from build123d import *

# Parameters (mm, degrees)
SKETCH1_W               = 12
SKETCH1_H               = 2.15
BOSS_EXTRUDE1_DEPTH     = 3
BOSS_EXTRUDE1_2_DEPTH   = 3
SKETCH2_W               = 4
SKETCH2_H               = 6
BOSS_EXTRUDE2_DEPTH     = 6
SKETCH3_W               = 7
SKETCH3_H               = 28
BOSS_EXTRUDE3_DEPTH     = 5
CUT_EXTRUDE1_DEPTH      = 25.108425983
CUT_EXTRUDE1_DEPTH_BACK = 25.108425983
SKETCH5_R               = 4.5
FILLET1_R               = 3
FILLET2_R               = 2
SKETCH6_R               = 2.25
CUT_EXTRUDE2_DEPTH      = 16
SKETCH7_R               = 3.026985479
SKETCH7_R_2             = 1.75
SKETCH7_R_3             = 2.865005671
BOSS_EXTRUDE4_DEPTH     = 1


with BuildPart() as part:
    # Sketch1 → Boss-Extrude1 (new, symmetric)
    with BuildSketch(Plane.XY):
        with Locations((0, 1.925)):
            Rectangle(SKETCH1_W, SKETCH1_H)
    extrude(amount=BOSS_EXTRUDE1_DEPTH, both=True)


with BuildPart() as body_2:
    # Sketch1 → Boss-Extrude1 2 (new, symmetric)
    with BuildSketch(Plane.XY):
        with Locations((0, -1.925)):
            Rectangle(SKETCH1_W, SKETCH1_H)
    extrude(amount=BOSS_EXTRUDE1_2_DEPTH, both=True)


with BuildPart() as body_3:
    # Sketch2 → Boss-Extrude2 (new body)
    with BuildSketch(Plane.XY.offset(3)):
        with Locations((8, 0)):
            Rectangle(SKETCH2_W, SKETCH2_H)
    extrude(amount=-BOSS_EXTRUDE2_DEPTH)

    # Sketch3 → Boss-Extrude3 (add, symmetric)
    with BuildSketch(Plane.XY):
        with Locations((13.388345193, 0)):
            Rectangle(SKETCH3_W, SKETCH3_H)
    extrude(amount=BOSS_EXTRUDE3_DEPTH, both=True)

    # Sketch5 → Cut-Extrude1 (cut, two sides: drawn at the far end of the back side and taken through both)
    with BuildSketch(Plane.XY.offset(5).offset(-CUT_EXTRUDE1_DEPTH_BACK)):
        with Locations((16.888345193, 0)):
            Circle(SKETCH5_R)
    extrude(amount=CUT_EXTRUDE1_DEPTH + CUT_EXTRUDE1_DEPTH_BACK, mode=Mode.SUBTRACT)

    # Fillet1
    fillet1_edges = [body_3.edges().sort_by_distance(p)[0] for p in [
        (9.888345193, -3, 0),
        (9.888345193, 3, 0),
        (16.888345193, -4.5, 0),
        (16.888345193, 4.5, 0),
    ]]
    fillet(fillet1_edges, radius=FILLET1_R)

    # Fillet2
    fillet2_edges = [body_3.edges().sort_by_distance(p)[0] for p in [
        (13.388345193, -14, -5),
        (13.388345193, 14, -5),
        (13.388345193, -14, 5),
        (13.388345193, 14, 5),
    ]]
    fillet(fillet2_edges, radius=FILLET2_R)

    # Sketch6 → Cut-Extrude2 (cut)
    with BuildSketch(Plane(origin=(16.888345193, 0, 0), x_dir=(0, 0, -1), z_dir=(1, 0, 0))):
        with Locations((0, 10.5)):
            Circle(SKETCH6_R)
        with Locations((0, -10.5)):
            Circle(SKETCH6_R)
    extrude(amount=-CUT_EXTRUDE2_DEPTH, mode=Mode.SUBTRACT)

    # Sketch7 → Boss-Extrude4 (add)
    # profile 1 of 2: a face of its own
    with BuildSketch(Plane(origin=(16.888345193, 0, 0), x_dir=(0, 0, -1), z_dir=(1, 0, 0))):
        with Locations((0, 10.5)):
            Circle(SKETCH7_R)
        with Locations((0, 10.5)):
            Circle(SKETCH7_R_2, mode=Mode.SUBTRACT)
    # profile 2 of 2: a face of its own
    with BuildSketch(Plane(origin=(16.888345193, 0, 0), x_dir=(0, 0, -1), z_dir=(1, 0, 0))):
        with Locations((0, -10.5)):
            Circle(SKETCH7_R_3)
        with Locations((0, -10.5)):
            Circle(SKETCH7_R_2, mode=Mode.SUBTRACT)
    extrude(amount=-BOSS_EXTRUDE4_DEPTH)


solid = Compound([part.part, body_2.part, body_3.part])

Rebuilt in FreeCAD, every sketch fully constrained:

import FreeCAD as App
import Part
import Sketcher
Q = App.Units.Quantity


def edges_at(feature, points):
    """Names of the edges that pass closest to the given points."""
    edges = feature.Shape.Edges
    near = lambda p: min(range(len(edges)), key=lambda i: edges[i].distToShape(Part.Vertex(*p))[0])
    return sorted({f"Edge{near(p) + 1}" for p in points})

doc = App.newDocument("Part")
body = doc.addObject("PartDesign::Body", "Body")

sketch1 = body.newObject("Sketcher::SketchObject", "Sketch")
sketch1.AttachmentSupport = (doc.getObject("XY_Plane"), [""])
sketch1.MapMode = "FlatFace"
sketch1.addGeometry(Part.LineSegment(App.Vector(-6, 3, 0), App.Vector(-6, 0.8, 0)), False)
sketch1.addGeometry(Part.LineSegment(App.Vector(-6, 0.8, 0), App.Vector(6, 0.8, 0)), False)
sketch1.addGeometry(Part.LineSegment(App.Vector(6, 0.8, 0), App.Vector(6, 3, 0)), False)
sketch1.addGeometry(Part.LineSegment(App.Vector(6, 3, 0), App.Vector(-6, 3, 0)), False)
sketch1.addConstraint(Sketcher.Constraint("Coincident", 0, 2, 1, 1))
sketch1.addConstraint(Sketcher.Constraint("Coincident", 1, 2, 2, 1))
sketch1.addConstraint(Sketcher.Constraint("Coincident", 2, 2, 3, 1))
sketch1.addConstraint(Sketcher.Constraint("Coincident", 3, 2, 0, 1))
sketch1.addConstraint(Sketcher.Constraint("Vertical", 0))
sketch1.addConstraint(Sketcher.Constraint("Horizontal", 1))
sketch1.addConstraint(Sketcher.Constraint("Vertical", 2))
sketch1.addConstraint(Sketcher.Constraint("Horizontal", 3))
sketch1.addConstraint(Sketcher.Constraint("DistanceX", 1, 1, 1, 2, Q("12 mm")))
sketch1.addConstraint(Sketcher.Constraint("DistanceX", 0, 2, -1, 1, Q("6 mm")))
sketch1.addConstraint(Sketcher.Constraint("DistanceY", -1, 1, 2, 2, Q("3 mm")))
sketch1.addConstraint(Sketcher.Constraint("DistanceY", 0, 2, 0, 1, Q("2.15 mm")))
pad1 = body.newObject("PartDesign::Pad", "Pad")
pad1.Profile = sketch1
pad1.Length = 6
pad1.Midplane = True
body2 = doc.addObject("PartDesign::Body", "Body001")

sketch2 = body2.newObject("Sketcher::SketchObject", "Sketch001")
sketch2.AttachmentSupport = (doc.getObject("XY_Plane001"), [""])
sketch2.MapMode = "FlatFace"
sketch2.addGeometry(Part.LineSegment(App.Vector(-6, -0.8, 0), App.Vector(-6, -3, 0)), False)
sketch2.addGeometry(Part.LineSegment(App.Vector(-6, -3, 0), App.Vector(6, -3, 0)), False)
sketch2.addGeometry(Part.LineSegment(App.Vector(6, -3, 0), App.Vector(6, -0.8, 0)), False)
sketch2.addGeometry(Part.LineSegment(App.Vector(6, -0.8, 0), App.Vector(-6, -0.8, 0)), False)
sketch2.addConstraint(Sketcher.Constraint("Coincident", 0, 2, 1, 1))
sketch2.addConstraint(Sketcher.Constraint("Coincident", 1, 2, 2, 1))
sketch2.addConstraint(Sketcher.Constraint("Coincident", 2, 2, 3, 1))
sketch2.addConstraint(Sketcher.Constraint("Coincident", 3, 2, 0, 1))
sketch2.addConstraint(Sketcher.Constraint("Vertical", 0))
sketch2.addConstraint(Sketcher.Constraint("Horizontal", 1))
sketch2.addConstraint(Sketcher.Constraint("Vertical", 2))
sketch2.addConstraint(Sketcher.Constraint("Horizontal", 3))
sketch2.addConstraint(Sketcher.Constraint("DistanceX", 1, 1, 1, 2, Q("12 mm")))
sketch2.addConstraint(Sketcher.Constraint("DistanceX", 0, 2, -1, 1, Q("6 mm")))
sketch2.addConstraint(Sketcher.Constraint("DistanceY", 0, 2, -1, 1, Q("3 mm")))
sketch2.addConstraint(Sketcher.Constraint("DistanceY", 0, 2, 0, 1, Q("2.15 mm")))
pad2 = body2.newObject("PartDesign::Pad", "Pad001")
pad2.Profile = sketch2
pad2.Length = 6
pad2.Midplane = True
body3 = doc.addObject("PartDesign::Body", "Body002")

sketch3 = body3.newObject("Sketcher::SketchObject", "Sketch002")
sketch3.AttachmentSupport = (doc.getObject("XY_Plane002"), [""])
sketch3.MapMode = "FlatFace"
sketch3.AttachmentOffset = App.Placement(App.Vector(0, 0, 3), App.Rotation())
sketch3.addGeometry(Part.LineSegment(App.Vector(6, 3, 0), App.Vector(6, -3, 0)), False)
sketch3.addGeometry(Part.LineSegment(App.Vector(6, -3, 0), App.Vector(10, -3, 0)), False)
sketch3.addGeometry(Part.LineSegment(App.Vector(10, -3, 0), App.Vector(10, 3, 0)), False)
sketch3.addGeometry(Part.LineSegment(App.Vector(10, 3, 0), App.Vector(6, 3, 0)), False)
sketch3.addConstraint(Sketcher.Constraint("Coincident", 0, 2, 1, 1))
sketch3.addConstraint(Sketcher.Constraint("Coincident", 1, 2, 2, 1))
sketch3.addConstraint(Sketcher.Constraint("Coincident", 2, 2, 3, 1))
sketch3.addConstraint(Sketcher.Constraint("Coincident", 3, 2, 0, 1))
sketch3.addConstraint(Sketcher.Constraint("Vertical", 0))
sketch3.addConstraint(Sketcher.Constraint("Horizontal", 1))
sketch3.addConstraint(Sketcher.Constraint("Vertical", 2))
sketch3.addConstraint(Sketcher.Constraint("Horizontal", 3))
sketch3.addConstraint(Sketcher.Constraint("DistanceX", 1, 1, 1, 2, Q("4 mm")))
sketch3.addConstraint(Sketcher.Constraint("DistanceY", 0, 2, 0, 1, Q("6 mm")))
sketch3.addConstraint(Sketcher.Constraint("DistanceX", -1, 1, 0, 2, Q("6 mm")))
sketch3.addConstraint(Sketcher.Constraint("DistanceY", 0, 2, -1, 1, Q("3 mm")))
pad3 = body3.newObject("PartDesign::Pad", "Pad002")
pad3.Profile = sketch3
pad3.Length = 6
pad3.Reversed = True

sketch4 = body3.newObject("Sketcher::SketchObject", "Sketch003")
sketch4.AttachmentSupport = (doc.getObject("XY_Plane002"), [""])
sketch4.MapMode = "FlatFace"
sketch4.addGeometry(Part.LineSegment(App.Vector(10, 14, 0), App.Vector(10, -14, 0)), False)
sketch4.addGeometry(Part.LineSegment(App.Vector(10, -14, 0), App.Vector(17, -14, 0)), False)
sketch4.addGeometry(Part.LineSegment(App.Vector(17, -14, 0), App.Vector(17, 14, 0)), False)
sketch4.addGeometry(Part.LineSegment(App.Vector(17, 14, 0), App.Vector(10, 14, 0)), False)
sketch4.addConstraint(Sketcher.Constraint("Coincident", 0, 2, 1, 1))
sketch4.addConstraint(Sketcher.Constraint("Coincident", 1, 2, 2, 1))
sketch4.addConstraint(Sketcher.Constraint("Coincident", 2, 2, 3, 1))
sketch4.addConstraint(Sketcher.Constraint("Coincident", 3, 2, 0, 1))
sketch4.addConstraint(Sketcher.Constraint("Vertical", 0))
sketch4.addConstraint(Sketcher.Constraint("Horizontal", 1))
sketch4.addConstraint(Sketcher.Constraint("Vertical", 2))
sketch4.addConstraint(Sketcher.Constraint("Horizontal", 3))
sketch4.addConstraint(Sketcher.Constraint("DistanceX", 1, 1, 1, 2, Q("7 mm")))
sketch4.addConstraint(Sketcher.Constraint("DistanceY", 0, 2, 0, 1, Q("28 mm")))
sketch4.addConstraint(Sketcher.Constraint("DistanceY", 0, 2, -1, 1, Q("14 mm")))
sketch4.addConstraint(Sketcher.Constraint("DistanceX", -1, 1, 0, 2, Q("9.888345 mm")))
pad4 = body3.newObject("PartDesign::Pad", "Pad003")
pad4.Profile = sketch4
pad4.Length = 10
pad4.Midplane = True

sketch5 = body3.newObject("Sketcher::SketchObject", "Sketch004")
sketch5.AttachmentSupport = (doc.getObject("XY_Plane002"), [""])
sketch5.MapMode = "FlatFace"
sketch5.AttachmentOffset = App.Placement(App.Vector(0, 0, 5), App.Rotation())
sketch5.addGeometry(Part.Circle(App.Vector(16.9, 0, 0), App.Vector(0, 0, 1), 4.5), False)
sketch5.addConstraint(Sketcher.Constraint("PointOnObject", 0, 3, -1))
sketch5.addConstraint(Sketcher.Constraint("Diameter", 0, Q("9 mm")))
sketch5.addConstraint(Sketcher.Constraint("DistanceX", -1, 1, 0, 3, Q("16.888345 mm")))
pocket1 = body3.newObject("PartDesign::Pocket", "Pocket")
pocket1.Profile = sketch5
pocket1.Type = "ThroughAll"
pocket1.Midplane = True
doc.recompute()

fillet = body3.newObject("PartDesign::Fillet", "Fillet")
fillet.Base = (pocket1, edges_at(pocket1, [
    (9.888, -3, 0),
    (9.888, 3, 0),
    (16.888, -4.5, 0),
    (16.888, 4.5, 0),
]))
fillet.Radius = 3
doc.recompute()

fillet2 = body3.newObject("PartDesign::Fillet", "Fillet001")
fillet2.Base = (fillet, edges_at(fillet, [
    (13.388, -14, -5),
    (13.388, 14, -5),
    (13.388, -14, 5),
    (13.388, 14, 5),
]))
fillet2.Radius = 2

sketch6 = body3.newObject("Sketcher::SketchObject", "Sketch005")
sketch6.AttachmentSupport = (doc.getObject("YZ_Plane002"), [""])
sketch6.MapMode = "FlatFace"
sketch6.AttachmentOffset = App.Placement(App.Vector(0, 0, 16.888345), App.Rotation())
sketch6.addGeometry(Part.Circle(App.Vector(10.5, 0, 0), App.Vector(0, 0, 1), 2.2), False)
sketch6.addGeometry(Part.Circle(App.Vector(-10.5, 0, 0), App.Vector(0, 0, 1), 2.2), False)
sketch6.addConstraint(Sketcher.Constraint("Equal", 0, 1))
sketch6.addConstraint(Sketcher.Constraint("Symmetric", 0, 3, 1, 3, -1, 1))
sketch6.addConstraint(Sketcher.Constraint("PointOnObject", 0, 3, -1))
sketch6.addConstraint(Sketcher.Constraint("Diameter", 0, Q("4.5 mm")))
sketch6.addConstraint(Sketcher.Constraint("DistanceX", 1, 3, 0, 3, Q("21 mm")))
pocket2 = body3.newObject("PartDesign::Pocket", "Pocket001")
pocket2.Profile = sketch6
pocket2.Length = 16

sketch7 = body3.newObject("Sketcher::SketchObject", "Sketch006")
sketch7.AttachmentSupport = (doc.getObject("YZ_Plane002"), [""])
sketch7.MapMode = "FlatFace"
sketch7.AttachmentOffset = App.Placement(App.Vector(0, 0, 16.888345), App.Rotation())
sketch7.addGeometry(Part.Circle(App.Vector(10.5, 0, 0), App.Vector(0, 0, 1), 3), False)
sketch7.addGeometry(Part.Circle(App.Vector(10.5, 0, 0), App.Vector(0, 0, 1), 1.8), False)
sketch7.addGeometry(Part.Circle(App.Vector(-10.5, 0, 0), App.Vector(0, 0, 1), 2.9), False)
sketch7.addGeometry(Part.Circle(App.Vector(-10.5, 0, 0), App.Vector(0, 0, 1), 1.8), False)
sketch7.addConstraint(Sketcher.Constraint("Coincident", 1, 3, 0, 3))
sketch7.addConstraint(Sketcher.Constraint("Coincident", 3, 3, 2, 3))
sketch7.addConstraint(Sketcher.Constraint("Equal", 1, 3))
sketch7.addConstraint(Sketcher.Constraint("Symmetric", 0, 3, 2, 3, -1, 1))
sketch7.addConstraint(Sketcher.Constraint("PointOnObject", 0, 3, -1))
sketch7.addConstraint(Sketcher.Constraint("Diameter", 1, Q("3.5 mm")))
sketch7.addConstraint(Sketcher.Constraint("DistanceX", 2, 3, 0, 3, Q("21 mm")))
sketch7.addConstraint(Sketcher.Constraint("Diameter", 0, Q("6.053971 mm")))
sketch7.addConstraint(Sketcher.Constraint("Diameter", 2, Q("5.730011 mm")))
pad5 = body3.newObject("PartDesign::Pad", "Pad004")
pad5.Profile = sketch7
pad5.Length = 1
pad5.Reversed = True

doc.recompute()
